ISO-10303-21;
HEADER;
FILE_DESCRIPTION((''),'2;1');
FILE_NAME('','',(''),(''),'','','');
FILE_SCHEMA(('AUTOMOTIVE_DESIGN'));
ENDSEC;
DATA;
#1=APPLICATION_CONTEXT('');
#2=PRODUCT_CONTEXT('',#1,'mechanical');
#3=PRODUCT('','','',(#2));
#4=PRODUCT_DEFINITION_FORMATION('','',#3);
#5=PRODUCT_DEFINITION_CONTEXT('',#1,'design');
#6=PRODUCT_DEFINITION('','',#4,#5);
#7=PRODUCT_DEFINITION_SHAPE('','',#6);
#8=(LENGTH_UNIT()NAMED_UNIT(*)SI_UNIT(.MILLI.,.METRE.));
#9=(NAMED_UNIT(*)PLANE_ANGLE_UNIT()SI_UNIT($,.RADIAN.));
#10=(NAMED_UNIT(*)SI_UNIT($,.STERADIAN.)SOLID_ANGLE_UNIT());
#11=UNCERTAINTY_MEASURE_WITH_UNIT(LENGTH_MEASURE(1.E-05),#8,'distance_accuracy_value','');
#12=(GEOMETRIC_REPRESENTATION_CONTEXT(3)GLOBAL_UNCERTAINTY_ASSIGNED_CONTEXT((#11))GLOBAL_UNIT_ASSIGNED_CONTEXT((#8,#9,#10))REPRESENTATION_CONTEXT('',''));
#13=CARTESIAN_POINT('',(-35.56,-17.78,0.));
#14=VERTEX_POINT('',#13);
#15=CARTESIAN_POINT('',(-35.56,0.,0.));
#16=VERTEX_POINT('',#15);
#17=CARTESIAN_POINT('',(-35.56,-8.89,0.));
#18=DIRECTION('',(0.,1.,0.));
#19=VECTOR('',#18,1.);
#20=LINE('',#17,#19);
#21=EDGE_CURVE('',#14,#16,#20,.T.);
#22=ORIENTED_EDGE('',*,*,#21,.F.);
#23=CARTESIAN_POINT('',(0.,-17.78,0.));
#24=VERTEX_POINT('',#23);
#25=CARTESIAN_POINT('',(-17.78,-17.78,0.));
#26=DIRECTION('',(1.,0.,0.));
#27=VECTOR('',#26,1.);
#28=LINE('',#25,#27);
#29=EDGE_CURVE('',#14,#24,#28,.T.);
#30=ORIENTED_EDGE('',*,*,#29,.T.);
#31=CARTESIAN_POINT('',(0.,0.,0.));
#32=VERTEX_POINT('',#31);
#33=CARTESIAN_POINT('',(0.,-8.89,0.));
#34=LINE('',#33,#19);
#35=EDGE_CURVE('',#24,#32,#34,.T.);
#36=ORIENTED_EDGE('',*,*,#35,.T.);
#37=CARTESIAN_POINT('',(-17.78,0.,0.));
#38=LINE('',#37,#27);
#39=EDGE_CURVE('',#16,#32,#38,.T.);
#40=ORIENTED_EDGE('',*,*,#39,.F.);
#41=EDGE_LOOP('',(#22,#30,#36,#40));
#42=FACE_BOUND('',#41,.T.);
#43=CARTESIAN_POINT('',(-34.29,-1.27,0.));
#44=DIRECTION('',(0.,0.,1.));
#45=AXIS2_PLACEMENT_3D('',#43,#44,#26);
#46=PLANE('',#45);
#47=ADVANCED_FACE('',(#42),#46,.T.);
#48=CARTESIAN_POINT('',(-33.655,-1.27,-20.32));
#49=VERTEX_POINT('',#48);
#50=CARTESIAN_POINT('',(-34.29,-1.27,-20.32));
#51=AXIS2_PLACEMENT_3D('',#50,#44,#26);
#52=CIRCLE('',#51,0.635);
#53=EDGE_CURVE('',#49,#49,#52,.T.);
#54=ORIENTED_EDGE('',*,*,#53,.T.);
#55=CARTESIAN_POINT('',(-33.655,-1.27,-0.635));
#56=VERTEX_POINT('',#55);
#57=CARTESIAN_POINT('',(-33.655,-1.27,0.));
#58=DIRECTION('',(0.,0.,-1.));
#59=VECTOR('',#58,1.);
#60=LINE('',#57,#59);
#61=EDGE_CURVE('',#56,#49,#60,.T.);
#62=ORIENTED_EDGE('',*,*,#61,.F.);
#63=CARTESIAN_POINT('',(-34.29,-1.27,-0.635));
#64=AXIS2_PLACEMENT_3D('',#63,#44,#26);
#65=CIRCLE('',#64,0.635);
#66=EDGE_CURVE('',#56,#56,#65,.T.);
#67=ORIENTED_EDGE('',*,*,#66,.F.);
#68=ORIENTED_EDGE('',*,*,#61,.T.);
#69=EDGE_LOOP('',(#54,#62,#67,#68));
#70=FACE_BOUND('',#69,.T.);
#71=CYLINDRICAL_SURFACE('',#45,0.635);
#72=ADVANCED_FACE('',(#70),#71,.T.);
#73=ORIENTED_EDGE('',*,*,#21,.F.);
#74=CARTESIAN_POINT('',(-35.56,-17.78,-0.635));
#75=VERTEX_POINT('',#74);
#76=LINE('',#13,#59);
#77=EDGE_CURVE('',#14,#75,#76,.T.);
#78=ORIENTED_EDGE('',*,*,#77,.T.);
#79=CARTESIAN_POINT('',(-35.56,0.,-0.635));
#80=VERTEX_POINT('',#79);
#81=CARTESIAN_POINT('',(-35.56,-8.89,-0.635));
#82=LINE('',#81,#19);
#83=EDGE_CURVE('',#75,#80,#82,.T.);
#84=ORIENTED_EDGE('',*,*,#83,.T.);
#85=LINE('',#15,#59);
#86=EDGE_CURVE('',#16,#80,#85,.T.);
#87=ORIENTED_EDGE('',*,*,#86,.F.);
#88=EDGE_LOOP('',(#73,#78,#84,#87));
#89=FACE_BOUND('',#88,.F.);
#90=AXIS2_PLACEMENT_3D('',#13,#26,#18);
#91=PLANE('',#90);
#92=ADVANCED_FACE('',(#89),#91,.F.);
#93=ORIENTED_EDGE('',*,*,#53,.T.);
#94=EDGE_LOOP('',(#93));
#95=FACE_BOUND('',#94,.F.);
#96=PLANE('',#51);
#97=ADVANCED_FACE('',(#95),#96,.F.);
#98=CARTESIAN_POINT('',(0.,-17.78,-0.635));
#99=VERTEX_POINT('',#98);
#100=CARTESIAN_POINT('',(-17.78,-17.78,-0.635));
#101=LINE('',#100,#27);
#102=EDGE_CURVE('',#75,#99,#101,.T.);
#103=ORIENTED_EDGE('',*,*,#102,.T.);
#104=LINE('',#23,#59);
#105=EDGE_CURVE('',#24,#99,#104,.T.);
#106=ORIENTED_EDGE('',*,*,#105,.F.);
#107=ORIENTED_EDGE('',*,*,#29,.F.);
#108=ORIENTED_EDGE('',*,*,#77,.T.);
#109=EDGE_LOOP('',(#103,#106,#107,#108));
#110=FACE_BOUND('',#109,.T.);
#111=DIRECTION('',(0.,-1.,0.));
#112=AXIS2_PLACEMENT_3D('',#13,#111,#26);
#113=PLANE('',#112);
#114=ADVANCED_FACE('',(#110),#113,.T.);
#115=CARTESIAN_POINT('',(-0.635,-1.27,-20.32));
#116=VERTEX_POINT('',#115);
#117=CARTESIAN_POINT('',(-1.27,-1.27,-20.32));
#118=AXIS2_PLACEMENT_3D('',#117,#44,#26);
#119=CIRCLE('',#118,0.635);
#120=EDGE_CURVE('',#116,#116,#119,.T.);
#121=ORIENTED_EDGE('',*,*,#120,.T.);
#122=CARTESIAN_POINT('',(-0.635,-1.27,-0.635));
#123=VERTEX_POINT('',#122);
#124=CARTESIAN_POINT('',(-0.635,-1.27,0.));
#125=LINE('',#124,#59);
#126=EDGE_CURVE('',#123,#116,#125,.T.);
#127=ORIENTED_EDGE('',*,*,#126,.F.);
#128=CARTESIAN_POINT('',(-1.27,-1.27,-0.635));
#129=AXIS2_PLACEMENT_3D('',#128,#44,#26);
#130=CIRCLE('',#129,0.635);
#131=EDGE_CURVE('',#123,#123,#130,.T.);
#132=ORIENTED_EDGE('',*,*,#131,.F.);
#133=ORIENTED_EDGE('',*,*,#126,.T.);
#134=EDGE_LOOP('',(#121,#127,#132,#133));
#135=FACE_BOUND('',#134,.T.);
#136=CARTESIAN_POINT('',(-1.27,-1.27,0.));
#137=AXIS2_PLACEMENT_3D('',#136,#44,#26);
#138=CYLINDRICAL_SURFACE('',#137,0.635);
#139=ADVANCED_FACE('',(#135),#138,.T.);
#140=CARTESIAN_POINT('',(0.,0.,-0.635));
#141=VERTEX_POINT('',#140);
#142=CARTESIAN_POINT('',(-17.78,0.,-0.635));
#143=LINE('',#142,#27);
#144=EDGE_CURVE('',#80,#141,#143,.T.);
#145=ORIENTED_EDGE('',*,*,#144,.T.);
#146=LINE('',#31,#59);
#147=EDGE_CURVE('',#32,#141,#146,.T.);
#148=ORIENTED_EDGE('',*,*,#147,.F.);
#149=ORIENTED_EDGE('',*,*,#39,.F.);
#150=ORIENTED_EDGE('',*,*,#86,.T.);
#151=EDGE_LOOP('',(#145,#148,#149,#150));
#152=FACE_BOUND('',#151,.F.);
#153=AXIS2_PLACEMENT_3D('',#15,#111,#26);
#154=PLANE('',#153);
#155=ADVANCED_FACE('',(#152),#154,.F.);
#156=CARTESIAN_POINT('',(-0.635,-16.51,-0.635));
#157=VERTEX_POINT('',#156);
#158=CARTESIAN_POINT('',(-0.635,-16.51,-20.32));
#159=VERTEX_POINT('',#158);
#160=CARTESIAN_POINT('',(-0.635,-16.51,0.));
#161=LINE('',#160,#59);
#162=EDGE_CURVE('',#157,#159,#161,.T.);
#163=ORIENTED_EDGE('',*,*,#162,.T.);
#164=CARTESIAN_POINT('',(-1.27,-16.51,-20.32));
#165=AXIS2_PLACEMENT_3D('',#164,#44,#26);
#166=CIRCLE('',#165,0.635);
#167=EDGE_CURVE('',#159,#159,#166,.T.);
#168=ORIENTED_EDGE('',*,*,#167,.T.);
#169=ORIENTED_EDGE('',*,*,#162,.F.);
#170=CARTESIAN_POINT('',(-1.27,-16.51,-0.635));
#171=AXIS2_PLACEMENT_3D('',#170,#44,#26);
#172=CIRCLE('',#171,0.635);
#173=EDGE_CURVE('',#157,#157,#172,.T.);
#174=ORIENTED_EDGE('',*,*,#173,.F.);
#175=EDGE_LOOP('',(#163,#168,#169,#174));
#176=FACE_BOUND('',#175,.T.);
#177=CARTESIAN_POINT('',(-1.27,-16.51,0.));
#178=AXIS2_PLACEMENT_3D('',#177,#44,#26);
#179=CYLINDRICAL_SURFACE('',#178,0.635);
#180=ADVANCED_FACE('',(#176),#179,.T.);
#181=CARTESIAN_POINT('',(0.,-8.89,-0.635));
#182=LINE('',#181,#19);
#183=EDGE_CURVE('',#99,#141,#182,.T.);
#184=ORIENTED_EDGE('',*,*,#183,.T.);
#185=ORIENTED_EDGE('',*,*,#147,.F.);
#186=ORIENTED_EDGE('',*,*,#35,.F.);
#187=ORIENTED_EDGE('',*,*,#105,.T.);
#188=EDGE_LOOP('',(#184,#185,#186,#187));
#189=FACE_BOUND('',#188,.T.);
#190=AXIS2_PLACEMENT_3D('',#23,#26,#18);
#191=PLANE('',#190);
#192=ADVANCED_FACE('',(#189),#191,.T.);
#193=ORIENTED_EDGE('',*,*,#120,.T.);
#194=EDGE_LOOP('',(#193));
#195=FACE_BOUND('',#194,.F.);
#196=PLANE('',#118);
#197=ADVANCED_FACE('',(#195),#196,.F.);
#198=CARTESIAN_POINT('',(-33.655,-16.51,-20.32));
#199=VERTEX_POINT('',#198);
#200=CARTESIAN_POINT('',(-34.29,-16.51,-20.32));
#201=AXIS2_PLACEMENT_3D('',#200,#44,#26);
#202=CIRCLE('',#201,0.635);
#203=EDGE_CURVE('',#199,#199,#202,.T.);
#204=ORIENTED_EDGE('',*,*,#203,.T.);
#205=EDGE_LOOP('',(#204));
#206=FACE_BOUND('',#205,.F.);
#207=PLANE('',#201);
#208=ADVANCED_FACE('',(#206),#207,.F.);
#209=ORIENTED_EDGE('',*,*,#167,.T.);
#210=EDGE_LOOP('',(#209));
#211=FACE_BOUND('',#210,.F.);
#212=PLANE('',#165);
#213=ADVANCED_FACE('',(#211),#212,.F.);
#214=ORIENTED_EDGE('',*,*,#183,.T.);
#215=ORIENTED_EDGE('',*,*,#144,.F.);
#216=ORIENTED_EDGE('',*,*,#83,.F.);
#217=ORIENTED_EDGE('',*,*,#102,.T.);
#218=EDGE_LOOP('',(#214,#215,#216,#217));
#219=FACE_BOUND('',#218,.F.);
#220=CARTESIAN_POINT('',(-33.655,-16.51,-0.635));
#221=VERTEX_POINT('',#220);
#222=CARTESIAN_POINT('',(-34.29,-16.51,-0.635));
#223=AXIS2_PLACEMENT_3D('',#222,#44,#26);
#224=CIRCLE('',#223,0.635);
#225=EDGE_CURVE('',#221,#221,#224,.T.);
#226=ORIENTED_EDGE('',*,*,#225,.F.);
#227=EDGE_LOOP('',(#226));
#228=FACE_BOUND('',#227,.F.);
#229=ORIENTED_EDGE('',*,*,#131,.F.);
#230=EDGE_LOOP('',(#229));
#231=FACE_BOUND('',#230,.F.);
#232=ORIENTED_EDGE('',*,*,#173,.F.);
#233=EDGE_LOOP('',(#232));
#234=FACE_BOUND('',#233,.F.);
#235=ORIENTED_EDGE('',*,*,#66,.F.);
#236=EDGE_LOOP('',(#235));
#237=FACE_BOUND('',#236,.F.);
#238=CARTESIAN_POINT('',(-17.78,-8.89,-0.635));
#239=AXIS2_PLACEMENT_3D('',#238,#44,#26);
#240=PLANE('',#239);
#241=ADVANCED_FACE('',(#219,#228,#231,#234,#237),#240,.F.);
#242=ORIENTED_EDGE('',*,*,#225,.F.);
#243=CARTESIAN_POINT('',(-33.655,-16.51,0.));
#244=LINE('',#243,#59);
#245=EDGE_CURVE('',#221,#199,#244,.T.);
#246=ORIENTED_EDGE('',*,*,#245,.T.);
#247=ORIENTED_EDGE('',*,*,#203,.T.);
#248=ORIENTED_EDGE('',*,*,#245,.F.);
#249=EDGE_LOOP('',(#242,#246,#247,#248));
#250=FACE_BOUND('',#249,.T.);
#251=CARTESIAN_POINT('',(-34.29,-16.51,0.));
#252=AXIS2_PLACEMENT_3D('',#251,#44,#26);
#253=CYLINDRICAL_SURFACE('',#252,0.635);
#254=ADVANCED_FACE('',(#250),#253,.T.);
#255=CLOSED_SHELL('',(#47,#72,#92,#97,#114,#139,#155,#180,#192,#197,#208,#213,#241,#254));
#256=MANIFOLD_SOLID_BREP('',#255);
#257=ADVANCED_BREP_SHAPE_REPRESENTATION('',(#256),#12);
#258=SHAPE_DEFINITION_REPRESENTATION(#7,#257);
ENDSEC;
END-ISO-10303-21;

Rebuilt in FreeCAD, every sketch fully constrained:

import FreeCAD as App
import Part
import Sketcher
Q = App.Units.Quantity


def add_polygon(sketch, points):
    """Adds a closed chain of lines whose ends are joined by coincident constraints."""
    first, n = sketch.GeometryCount, len(points)
    for a, b in zip(points, points[1:] + points[:1]):
        sketch.addGeometry(Part.LineSegment(App.Vector(*a, 0), App.Vector(*b, 0)), False)
    for i in range(n):
        sketch.addConstraint(Sketcher.Constraint("Coincident", first + i, 2, first + (i + 1) % n, 1))

doc = App.newDocument("Part")
body = doc.addObject("PartDesign::Body", "Body")

# Sketch on XY plane
sketch1 = body.newObject("Sketcher::SketchObject", "Sketch")
sketch1.AttachmentSupport = (doc.getObject("XY_Plane"), [""])
sketch1.MapMode = "FlatFace"
add_polygon(sketch1, [(-36, 0), (-36, -18), (0, -18), (0, 0)])  # lines 0-3
sketch1.addConstraint(Sketcher.Constraint("Vertical", 0))
sketch1.addConstraint(Sketcher.Constraint("Horizontal", 1))
sketch1.addConstraint(Sketcher.Constraint("Vertical", 2))
sketch1.addConstraint(Sketcher.Constraint("Horizontal", 3))
sketch1.addConstraint(Sketcher.Constraint("Coincident", 2, 2, -1, 1))
sketch1.addConstraint(Sketcher.Constraint("DistanceX", 1, 1, 1, 2, Q("1.4 in")))
sketch1.addConstraint(Sketcher.Constraint("DistanceY", 0, 2, 0, 1, Q("0.7 in")))
pad1 = body.newObject("PartDesign::Pad", "Pad")
pad1.Profile = sketch1
pad1.Length = Q("0.025 in")
pad1.Reversed = True

# Sketch on XY plane
sketch2 = body.newObject("Sketcher::SketchObject", "Sketch001")
sketch2.AttachmentSupport = (doc.getObject("XY_Plane"), [""])
sketch2.MapMode = "FlatFace"
sketch2.addGeometry(Part.Circle(App.Vector(-34.3, -1.3, 0), App.Vector(0, 0, 1), 0.6), False)
sketch2.addGeometry(Part.Circle(App.Vector(-34.3, -16.5, 0), App.Vector(0, 0, 1), 0.6), False)
sketch2.addGeometry(Part.Circle(App.Vector(-1.3, -16.5, 0), App.Vector(0, 0, 1), 0.6), False)
sketch2.addGeometry(Part.Circle(App.Vector(-1.3, -1.3, 0), App.Vector(0, 0, 1), 0.6), False)
sketch2.addConstraint(Sketcher.Constraint("Equal", 0, 1))
sketch2.addConstraint(Sketcher.Constraint("Equal", 1, 2))
sketch2.addConstraint(Sketcher.Constraint("Equal", 2, 3))
sketch2.addConstraint(Sketcher.Constraint("Horizontal", 1, 3, 2, 3))
sketch2.addConstraint(Sketcher.Constraint("Horizontal", 0, 3, 3, 3))
sketch2.addConstraint(Sketcher.Constraint("Vertical", 0, 3, 1, 3))
sketch2.addConstraint(Sketcher.Constraint("Vertical", 2, 3, 3, 3))
sketch2.addConstraint(Sketcher.Constraint("Diameter", 0, Q("0.05 in")))
sketch2.addConstraint(Sketcher.Constraint("DistanceY", 1, 3, 0, 3, Q("0.6 in")))
sketch2.addConstraint(Sketcher.Constraint("DistanceX", 1, 3, 2, 3, Q("1.3 in")))
sketch2.addConstraint(Sketcher.Constraint("DistanceX", 0, 3, -1, 1, Q("1.35 in")))
sketch2.addConstraint(Sketcher.Constraint("DistanceY", 0, 3, -1, 1, Q("0.05 in")))
pad2 = body.newObject("PartDesign::Pad", "Pad001")
pad2.Profile = sketch2
pad2.Length = Q("0.8 in")
pad2.Reversed = True

doc.recompute()
